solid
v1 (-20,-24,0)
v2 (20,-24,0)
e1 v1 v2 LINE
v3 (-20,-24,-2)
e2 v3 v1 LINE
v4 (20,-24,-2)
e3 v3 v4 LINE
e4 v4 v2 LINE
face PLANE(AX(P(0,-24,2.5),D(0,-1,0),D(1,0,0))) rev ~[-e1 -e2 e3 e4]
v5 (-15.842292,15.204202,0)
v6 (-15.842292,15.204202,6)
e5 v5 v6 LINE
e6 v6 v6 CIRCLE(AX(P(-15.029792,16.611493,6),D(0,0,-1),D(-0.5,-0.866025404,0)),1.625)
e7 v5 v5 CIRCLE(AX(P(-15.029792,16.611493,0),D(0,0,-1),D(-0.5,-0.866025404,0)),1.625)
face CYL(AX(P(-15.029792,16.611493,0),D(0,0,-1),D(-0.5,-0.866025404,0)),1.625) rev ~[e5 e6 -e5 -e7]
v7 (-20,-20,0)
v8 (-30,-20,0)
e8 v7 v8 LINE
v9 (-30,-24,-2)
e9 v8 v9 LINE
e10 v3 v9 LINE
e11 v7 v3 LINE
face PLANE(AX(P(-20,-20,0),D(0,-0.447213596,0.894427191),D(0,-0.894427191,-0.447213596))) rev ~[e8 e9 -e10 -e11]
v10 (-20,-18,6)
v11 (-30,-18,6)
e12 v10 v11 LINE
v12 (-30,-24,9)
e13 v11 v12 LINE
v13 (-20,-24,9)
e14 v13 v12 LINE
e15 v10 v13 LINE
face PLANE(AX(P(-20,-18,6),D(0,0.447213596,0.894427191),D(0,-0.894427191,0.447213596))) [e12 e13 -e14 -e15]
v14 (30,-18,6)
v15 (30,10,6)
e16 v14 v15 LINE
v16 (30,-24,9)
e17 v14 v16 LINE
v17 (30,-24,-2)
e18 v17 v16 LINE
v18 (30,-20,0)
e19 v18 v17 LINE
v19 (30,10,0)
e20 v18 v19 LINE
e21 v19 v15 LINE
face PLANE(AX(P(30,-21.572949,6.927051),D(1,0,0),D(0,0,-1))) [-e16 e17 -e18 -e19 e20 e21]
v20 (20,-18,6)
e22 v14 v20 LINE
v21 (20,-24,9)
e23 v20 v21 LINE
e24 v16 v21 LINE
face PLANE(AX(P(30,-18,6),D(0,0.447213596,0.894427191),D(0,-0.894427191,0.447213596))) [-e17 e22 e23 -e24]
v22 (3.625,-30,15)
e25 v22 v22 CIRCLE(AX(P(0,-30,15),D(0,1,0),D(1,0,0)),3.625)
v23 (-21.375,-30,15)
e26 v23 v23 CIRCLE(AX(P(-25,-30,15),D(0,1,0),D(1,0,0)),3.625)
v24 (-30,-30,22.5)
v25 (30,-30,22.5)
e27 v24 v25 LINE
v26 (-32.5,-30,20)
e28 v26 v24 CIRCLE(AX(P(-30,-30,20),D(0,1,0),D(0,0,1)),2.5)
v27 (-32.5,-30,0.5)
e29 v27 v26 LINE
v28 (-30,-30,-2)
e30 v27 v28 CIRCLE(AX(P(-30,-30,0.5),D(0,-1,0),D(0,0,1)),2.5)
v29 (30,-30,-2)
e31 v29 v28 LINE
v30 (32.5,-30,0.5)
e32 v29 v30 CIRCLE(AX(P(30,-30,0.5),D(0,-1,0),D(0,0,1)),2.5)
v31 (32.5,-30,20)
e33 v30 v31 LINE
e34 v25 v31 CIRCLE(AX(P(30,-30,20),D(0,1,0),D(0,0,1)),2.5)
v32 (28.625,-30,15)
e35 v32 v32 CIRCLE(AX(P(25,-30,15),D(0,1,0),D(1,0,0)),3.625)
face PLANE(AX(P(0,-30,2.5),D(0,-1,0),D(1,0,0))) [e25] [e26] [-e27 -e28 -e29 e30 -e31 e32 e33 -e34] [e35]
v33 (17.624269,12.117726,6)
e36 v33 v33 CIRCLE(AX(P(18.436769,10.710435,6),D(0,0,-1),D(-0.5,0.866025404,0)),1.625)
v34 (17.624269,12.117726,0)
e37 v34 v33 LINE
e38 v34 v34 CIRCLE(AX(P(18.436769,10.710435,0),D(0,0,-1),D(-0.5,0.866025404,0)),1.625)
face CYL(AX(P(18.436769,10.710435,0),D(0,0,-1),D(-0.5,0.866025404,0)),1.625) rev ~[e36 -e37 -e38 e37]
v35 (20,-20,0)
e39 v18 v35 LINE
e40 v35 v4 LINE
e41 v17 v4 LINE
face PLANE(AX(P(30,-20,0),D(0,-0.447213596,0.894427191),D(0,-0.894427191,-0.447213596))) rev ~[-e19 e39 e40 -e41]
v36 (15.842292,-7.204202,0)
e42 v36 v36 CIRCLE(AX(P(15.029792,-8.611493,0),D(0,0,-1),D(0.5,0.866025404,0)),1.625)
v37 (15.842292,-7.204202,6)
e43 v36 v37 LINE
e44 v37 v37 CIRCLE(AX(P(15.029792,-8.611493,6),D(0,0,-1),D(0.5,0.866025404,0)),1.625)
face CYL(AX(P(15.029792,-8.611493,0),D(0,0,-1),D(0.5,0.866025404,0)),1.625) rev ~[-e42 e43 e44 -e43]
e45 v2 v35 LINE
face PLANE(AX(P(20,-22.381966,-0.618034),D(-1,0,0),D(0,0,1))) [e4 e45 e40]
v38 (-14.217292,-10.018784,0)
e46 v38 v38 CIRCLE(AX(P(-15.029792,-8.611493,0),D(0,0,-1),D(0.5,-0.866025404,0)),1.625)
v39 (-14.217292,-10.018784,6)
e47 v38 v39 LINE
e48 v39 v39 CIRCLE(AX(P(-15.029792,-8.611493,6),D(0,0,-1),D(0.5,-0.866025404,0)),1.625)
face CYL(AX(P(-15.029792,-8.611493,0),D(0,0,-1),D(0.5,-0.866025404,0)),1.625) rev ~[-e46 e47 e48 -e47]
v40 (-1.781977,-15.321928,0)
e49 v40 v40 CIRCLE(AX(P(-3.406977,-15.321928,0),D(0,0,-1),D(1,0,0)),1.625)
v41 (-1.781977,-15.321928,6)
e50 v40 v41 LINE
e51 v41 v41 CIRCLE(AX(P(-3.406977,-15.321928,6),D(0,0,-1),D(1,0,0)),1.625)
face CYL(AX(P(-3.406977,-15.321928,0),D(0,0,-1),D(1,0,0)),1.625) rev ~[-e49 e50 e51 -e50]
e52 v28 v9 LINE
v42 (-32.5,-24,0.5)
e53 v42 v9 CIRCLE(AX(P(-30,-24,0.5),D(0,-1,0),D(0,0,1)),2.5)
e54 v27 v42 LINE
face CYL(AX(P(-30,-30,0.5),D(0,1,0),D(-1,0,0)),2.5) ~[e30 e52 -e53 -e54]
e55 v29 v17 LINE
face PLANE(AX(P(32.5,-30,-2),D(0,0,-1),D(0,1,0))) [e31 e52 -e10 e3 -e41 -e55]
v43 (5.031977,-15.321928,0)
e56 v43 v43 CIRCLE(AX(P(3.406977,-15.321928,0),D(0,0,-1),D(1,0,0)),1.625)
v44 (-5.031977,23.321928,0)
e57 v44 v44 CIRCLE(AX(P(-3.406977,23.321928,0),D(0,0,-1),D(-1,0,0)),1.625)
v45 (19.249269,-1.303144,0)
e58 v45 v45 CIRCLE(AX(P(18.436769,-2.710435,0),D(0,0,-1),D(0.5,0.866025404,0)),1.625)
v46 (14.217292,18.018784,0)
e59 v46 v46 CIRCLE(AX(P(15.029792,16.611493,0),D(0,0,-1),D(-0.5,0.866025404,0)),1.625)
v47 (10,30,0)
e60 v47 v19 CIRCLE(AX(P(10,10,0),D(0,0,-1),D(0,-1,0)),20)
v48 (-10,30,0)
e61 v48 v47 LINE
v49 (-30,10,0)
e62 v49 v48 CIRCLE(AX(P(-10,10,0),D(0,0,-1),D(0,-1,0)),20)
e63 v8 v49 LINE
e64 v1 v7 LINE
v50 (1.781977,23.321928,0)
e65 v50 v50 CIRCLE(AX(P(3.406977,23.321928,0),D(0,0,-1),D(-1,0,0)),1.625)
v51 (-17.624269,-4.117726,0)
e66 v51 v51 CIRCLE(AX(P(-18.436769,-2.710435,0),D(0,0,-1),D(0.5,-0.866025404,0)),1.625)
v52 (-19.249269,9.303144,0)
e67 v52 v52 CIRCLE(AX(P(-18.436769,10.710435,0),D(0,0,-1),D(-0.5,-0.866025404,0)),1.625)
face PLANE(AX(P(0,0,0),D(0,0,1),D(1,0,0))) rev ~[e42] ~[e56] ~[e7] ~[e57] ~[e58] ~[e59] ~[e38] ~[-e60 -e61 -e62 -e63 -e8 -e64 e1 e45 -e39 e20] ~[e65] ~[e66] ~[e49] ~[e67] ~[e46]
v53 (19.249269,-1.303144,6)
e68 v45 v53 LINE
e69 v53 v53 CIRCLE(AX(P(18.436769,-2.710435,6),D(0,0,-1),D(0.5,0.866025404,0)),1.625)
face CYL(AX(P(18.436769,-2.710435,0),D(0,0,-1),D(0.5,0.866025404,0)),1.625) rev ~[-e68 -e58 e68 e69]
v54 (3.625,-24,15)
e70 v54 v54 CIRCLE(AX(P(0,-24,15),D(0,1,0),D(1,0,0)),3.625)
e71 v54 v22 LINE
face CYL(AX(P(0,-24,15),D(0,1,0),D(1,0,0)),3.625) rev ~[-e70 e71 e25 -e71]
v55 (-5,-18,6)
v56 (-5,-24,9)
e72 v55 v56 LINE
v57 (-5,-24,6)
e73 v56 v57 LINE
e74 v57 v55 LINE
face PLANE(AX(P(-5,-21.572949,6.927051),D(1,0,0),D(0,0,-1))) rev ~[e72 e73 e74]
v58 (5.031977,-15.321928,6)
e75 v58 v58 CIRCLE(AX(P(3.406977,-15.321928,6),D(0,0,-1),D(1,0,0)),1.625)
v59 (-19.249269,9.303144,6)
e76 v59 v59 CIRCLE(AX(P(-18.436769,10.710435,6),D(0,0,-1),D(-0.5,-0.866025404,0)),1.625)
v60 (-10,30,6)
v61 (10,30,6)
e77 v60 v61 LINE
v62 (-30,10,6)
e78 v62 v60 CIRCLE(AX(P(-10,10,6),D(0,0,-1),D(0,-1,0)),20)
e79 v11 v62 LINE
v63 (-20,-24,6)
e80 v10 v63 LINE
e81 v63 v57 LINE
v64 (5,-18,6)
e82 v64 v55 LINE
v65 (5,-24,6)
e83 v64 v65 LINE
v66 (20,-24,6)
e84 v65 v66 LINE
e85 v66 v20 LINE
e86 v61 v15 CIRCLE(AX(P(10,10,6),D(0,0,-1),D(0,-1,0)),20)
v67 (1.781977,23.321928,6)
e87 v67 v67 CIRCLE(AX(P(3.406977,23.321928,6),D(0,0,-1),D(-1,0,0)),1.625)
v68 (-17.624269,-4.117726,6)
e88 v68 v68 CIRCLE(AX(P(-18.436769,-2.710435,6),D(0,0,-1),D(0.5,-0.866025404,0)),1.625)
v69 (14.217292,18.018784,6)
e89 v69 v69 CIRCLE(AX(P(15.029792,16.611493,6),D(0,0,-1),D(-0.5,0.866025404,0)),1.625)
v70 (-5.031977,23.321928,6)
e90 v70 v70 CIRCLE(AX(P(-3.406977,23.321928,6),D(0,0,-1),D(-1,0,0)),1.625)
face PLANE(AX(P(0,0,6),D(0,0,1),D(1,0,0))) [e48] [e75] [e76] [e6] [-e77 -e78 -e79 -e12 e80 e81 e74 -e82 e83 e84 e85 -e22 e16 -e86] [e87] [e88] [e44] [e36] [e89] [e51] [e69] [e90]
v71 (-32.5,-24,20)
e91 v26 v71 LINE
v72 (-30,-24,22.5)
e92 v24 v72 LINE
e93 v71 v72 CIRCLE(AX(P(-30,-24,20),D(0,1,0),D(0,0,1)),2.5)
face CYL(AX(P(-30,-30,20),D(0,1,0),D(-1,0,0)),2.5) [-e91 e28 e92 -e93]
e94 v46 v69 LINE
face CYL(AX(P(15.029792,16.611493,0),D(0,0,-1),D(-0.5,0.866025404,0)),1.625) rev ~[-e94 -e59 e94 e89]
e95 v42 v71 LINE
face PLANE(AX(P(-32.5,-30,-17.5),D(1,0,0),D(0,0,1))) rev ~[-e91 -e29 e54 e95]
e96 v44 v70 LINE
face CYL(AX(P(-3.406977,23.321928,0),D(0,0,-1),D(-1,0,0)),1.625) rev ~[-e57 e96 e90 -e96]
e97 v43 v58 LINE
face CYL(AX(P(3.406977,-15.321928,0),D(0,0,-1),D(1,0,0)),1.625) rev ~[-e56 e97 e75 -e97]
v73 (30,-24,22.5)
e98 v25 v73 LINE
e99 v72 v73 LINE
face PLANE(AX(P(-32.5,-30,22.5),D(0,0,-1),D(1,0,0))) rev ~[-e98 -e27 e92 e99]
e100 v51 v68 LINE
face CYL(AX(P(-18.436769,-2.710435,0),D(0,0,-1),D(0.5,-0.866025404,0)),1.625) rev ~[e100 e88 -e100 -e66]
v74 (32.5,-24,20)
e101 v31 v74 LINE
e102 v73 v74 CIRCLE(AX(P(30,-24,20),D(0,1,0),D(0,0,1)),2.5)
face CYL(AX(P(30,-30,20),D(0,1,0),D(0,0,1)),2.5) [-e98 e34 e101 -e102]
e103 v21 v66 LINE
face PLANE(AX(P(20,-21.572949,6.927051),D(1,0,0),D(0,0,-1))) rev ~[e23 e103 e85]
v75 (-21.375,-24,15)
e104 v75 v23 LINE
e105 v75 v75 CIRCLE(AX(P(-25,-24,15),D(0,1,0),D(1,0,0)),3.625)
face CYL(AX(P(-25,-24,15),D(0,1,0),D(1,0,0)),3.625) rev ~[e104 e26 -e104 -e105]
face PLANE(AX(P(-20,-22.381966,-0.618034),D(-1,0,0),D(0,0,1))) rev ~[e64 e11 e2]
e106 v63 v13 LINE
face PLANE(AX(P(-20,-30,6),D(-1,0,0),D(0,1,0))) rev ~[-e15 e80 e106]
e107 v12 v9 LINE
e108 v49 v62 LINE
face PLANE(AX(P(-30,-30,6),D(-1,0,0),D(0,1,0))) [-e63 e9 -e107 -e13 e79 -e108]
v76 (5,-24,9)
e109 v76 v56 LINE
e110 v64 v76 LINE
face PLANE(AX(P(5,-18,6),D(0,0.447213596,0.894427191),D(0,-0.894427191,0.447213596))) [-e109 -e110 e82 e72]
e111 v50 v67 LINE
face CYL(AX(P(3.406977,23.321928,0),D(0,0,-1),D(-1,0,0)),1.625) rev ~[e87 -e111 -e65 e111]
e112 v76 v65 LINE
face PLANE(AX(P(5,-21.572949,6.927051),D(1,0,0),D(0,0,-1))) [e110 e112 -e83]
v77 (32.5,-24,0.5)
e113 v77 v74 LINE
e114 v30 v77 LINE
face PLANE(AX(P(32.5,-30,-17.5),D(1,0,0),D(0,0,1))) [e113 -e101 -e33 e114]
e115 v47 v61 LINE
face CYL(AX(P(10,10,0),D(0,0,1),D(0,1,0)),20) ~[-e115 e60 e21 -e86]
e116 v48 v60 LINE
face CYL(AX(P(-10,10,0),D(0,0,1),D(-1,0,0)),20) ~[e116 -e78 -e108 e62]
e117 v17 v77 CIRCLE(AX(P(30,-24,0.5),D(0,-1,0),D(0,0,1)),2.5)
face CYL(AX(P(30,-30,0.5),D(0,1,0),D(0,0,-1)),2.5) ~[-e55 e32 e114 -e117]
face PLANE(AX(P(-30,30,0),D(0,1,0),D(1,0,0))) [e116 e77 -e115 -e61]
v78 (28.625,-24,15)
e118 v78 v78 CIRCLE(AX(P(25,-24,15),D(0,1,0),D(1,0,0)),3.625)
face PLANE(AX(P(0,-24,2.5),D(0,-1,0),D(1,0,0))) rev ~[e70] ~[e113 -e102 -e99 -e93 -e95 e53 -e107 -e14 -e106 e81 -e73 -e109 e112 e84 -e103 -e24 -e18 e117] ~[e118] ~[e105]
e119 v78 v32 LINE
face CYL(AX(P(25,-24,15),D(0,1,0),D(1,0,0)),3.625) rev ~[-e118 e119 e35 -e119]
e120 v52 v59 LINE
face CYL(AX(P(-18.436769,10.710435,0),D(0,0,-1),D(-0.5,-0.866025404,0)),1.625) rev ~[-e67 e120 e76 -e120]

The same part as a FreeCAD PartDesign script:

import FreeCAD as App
import Part
import Sketcher


def edges_at(feature, points):
    """Names of the edges that pass closest to the given points."""
    edges = feature.Shape.Edges
    near = lambda p: min(range(len(edges)), key=lambda i: edges[i].distToShape(Part.Vertex(*p))[0])
    return sorted({f"Edge{near(p) + 1}" for p in points})


def add_polygon(sketch, points):
    """Adds a closed chain of lines whose ends are joined by coincident constraints."""
    first, n = sketch.GeometryCount, len(points)
    for a, b in zip(points, points[1:] + points[:1]):
        sketch.addGeometry(Part.LineSegment(App.Vector(*a, 0), App.Vector(*b, 0)), False)
    for i in range(n):
        sketch.addConstraint(Sketcher.Constraint("Coincident", first + i, 2, first + (i + 1) % n, 1))

doc = App.newDocument("Part")
params = doc.addObject("Spreadsheet::Sheet", "Params")
for row, (alias, value) in enumerate([
    ("sketch1_width", "60 mm"),
    ("pad1_length", "6 mm"),
    ("sketch2_width", "10 mm"),
    ("sketch2_height", "6 mm"),
    ("pad2_length", "14 mm"),
    ("sketch3_width", "6 mm"),
    ("sketch3_width2", "4 mm"),
    ("sketch3_height", "3 mm"),
    ("sketch3_height2", "2 mm"),
    ("pad3_length", "10 mm"),
    ("sketch4_diameter", "7.25 mm"),
    ("pocket1_length", "15 mm"),
    ("linearpattern_pitch", "25 mm"),
    ("sketch5_diameter", "3.25 mm"),
    ("pocket2_length", "15 mm"),
    ("fillet_radius", "20 mm"),
    ("sketch6_diameter", "7.25 mm"),
    ("sketch6_width", "65 mm"),
    ("sketch6_height", "40 mm"),
    ("pad4_length", "6 mm"),
    ("sketch7_width", "6 mm"),
    ("sketch7_height", "15.5 mm"),
    ("pocket3_length", "65 mm"),
    ("fillet2_radius", "2.5 mm"),
    ("sketch8_width", "4 mm"),
    ("sketch8_height", "2 mm"),
    ("pocket4_length", "10 mm"),
], start=1):
    params.set(f"A{row}", alias)
    params.set(f"B{row}", "=" + value)
    params.setAlias(f"B{row}", alias)

body = doc.addObject("PartDesign::Body", "Body")

# Sketch on XY plane
sketch1 = body.newObject("Sketcher::SketchObject", "Sketch")
sketch1.AttachmentSupport = (doc.getObject("XY_Plane"), [""])
sketch1.MapMode = "FlatFace"
add_polygon(sketch1, [(-30, 30), (-30, -30), (30, -30), (30, 30)])  # lines 0-3
sketch1.addConstraint([
    Sketcher.Constraint("Vertical", 0),
    Sketcher.Constraint("Horizontal", 1),
    Sketcher.Constraint("Vertical", 2),
    Sketcher.Constraint("Horizontal", 3),
    Sketcher.Constraint("Symmetric", 0, 2, 2, 2, -1, 1),
    Sketcher.Constraint("Equal", 3, 0),
    Sketcher.Constraint("DistanceX", 1, 1, 1, 2, 60.0),
])
sketch1.setExpression("Constraints[10]", "Params.sketch1_width")
pad1 = body.newObject("PartDesign::Pad", "Pad")
pad1.Profile = sketch1
pad1.setExpression("Length", "Params.pad1_length")

# Sketch on XY plane
sketch2 = body.newObject("Sketcher::SketchObject", "Sketch001")
sketch2.AttachmentSupport = (doc.getObject("XY_Plane"), [""])
sketch2.MapMode = "FlatFace"
sketch2.AttachmentOffset = App.Placement(App.Vector(0, 0, 6), App.Rotation())
add_polygon(sketch2, [(20, -24), (20, -30), (30, -30), (30, -24)])  # lines 0-3
sketch2.addConstraint([
    Sketcher.Constraint("Vertical", 0),
    Sketcher.Constraint("Horizontal", 1),
    Sketcher.Constraint("Vertical", 2),
    Sketcher.Constraint("Horizontal", 3),
    Sketcher.Constraint("DistanceX", 1, 1, 1, 2, 10.0),
    Sketcher.Constraint("DistanceY", 0, 2, 0, 1, 6.0),
    Sketcher.Constraint("DistanceX", -1, 1, 0, 2, 20.0),
    Sketcher.Constraint("DistanceY", 0, 2, -1, 1, 30.0),
])
sketch2.setExpression("Constraints[8]", "Params.sketch2_width")
sketch2.setExpression("Constraints[9]", "Params.sketch2_height")
pad2 = body.newObject("PartDesign::Pad", "Pad001")
pad2.Profile = sketch2
pad2.setExpression("Length", "Params.pad2_length")

# Sketch on YZ plane
sketch3 = body.newObject("Sketcher::SketchObject", "Sketch002")
sketch3.AttachmentSupport = (doc.getObject("YZ_Plane"), [""])
sketch3.MapMode = "FlatFace"
sketch3.AttachmentOffset = App.Placement(App.Vector(0, 0, 30), App.Rotation())
add_polygon(sketch3, [(-18, 6), (-24, 9), (-24, 6)])  # lines 0-2
add_polygon(sketch3, [(-24, -2), (-20, 0), (-24, 0)])  # lines 3-5
sketch3.addConstraint([
    Sketcher.Constraint("Vertical", 1),
    Sketcher.Constraint("Horizontal", 2),
    Sketcher.Constraint("Horizontal", 4),
    Sketcher.Constraint("Vertical", 5),
    Sketcher.Constraint("PointOnObject", 3, 2, -1),
    Sketcher.Constraint("Vertical", 1, 2, 4, 2),
    Sketcher.Constraint("DistanceX", 2, 1, 2, 2, 6.0),
    Sketcher.Constraint("DistanceX", 4, 2, 4, 1, 4.0),
    Sketcher.Constraint("DistanceY", 1, 2, 1, 1, 3.0),
    Sketcher.Constraint("DistanceY", 5, 2, 5, 1, 2.0),
    Sketcher.Constraint("DistanceX", 0, 2, -1, 1, 24.0),
    Sketcher.Constraint("DistanceY", -1, 1, 0, 2, 9.0),
])
sketch3.setExpression("Constraints[12]", "Params.sketch3_width")
sketch3.setExpression("Constraints[13]", "Params.sketch3_width2")
sketch3.setExpression("Constraints[14]", "Params.sketch3_height")
sketch3.setExpression("Constraints[15]", "Params.sketch3_height2")
pad3 = body.newObject("PartDesign::Pad", "Pad002")
pad3.Profile = sketch3
pad3.setExpression("Length", "Params.pad3_length")
pad3.Reversed = True

# Sketch on XZ plane
sketch4 = body.newObject("Sketcher::SketchObject", "Sketch003")
sketch4.AttachmentSupport = (doc.getObject("XZ_Plane"), [""])
sketch4.MapMode = "FlatFace"
sketch4.AttachmentOffset = App.Placement(App.Vector(0, 0, 24), App.Rotation())
sketch4.addGeometry(Part.Circle(App.Vector(25, 15, 0), App.Vector(0, 0, 1), 3.6), False)
sketch4.addConstraint([
    Sketcher.Constraint("Diameter", 0, 7.25),
    Sketcher.Constraint("DistanceX", -1, 1, 0, 3, 25.0),
    Sketcher.Constraint("DistanceY", -1, 1, 0, 3, 15.0),
])
sketch4.setExpression("Constraints[0]", "Params.sketch4_diameter")
pocket1 = body.newObject("PartDesign::Pocket", "Pocket")
pocket1.Profile = sketch4
pocket1.setExpression("Length", "Params.pocket1_length")
pocket1.Reversed = True
doc.recompute()

linearpattern = body.newObject("PartDesign::LinearPattern", "LinearPattern")
linearpattern.Originals = [pad2, pad3, pocket1]
linearpattern.Direction = (doc.getObject("X_Axis"), [""])
linearpattern.Mode = "offset"
linearpattern.setExpression("Offset", "Params.linearpattern_pitch")
linearpattern.Occurrences = 3
linearpattern.Reversed = True
body.Tip = linearpattern

# Sketch on XY plane
sketch5 = body.newObject("Sketcher::SketchObject", "Sketch004")
sketch5.AttachmentSupport = (doc.getObject("XY_Plane"), [""])
sketch5.MapMode = "FlatFace"
sketch5.addGeometry([
    Part.Circle(App.Vector(-3.4, 23.3, 0), App.Vector(0, 0, 1), 1.6),
    Part.Circle(App.Vector(3.4, 23.3, 0), App.Vector(0, 0, 1), 1.6),
], False)
sketch5.addConstraint([
    Sketcher.Constraint("Equal", 0, 1),
    Sketcher.Constraint("Symmetric", 0, 3, 1, 3, -2),
    Sketcher.Constraint("Diameter", 0, 3.25),
    Sketcher.Constraint("DistanceY", -1, 1, 0, 3, 23.321928),
    Sketcher.Constraint("DistanceX", 0, 3, -1, 1, 3.406977),
])
sketch5.setExpression("Constraints[2]", "Params.sketch5_diameter")
pocket2 = body.newObject("PartDesign::Pocket", "Pocket001")
pocket2.Profile = sketch5
pocket2.setExpression("Length", "Params.pocket2_length")
pocket2.Reversed = True
doc.recompute()

datumline = body.newObject("PartDesign::Line", "DatumLine")
datumline.Placement = App.Placement(App.Vector(0, 4, 0), App.Rotation(App.Vector(0, 0, 1), App.Vector(0, 0, 1)))
polarpattern = body.newObject("PartDesign::PolarPattern", "PolarPattern")
polarpattern.Originals = [pocket2]
polarpattern.Axis = (datumline, [""])
polarpattern.Angle = 360
polarpattern.Occurrences = 6
body.Tip = polarpattern
doc.recompute()

fillet = body.newObject("PartDesign::Fillet", "Fillet")
fillet.Base = (polarpattern, edges_at(polarpattern, [(-30, 30, 3), (30, 30, 3)]))
fillet.setExpression("Radius", "Params.fillet_radius")

# Sketch on XZ plane
sketch6 = body.newObject("Sketcher::SketchObject", "Sketch005")
sketch6.AttachmentSupport = (doc.getObject("XZ_Plane"), [""])
sketch6.MapMode = "FlatFace"
sketch6.AttachmentOffset = App.Placement(App.Vector(0, 0, 30), App.Rotation())
add_polygon(sketch6, [(-32.5, 22.5), (-32.5, -17.5), (32.5, -17.5), (32.5, 22.5)])  # lines 0-3
sketch6.addGeometry(Part.Circle(App.Vector(-25, -10, 0), App.Vector(0, 0, 1), 3.6), False)  # 4
sketch6.addGeometry(Part.Circle(App.Vector(0, -10, 0), App.Vector(0, 0, 1), 3.6), False)  # 5
sketch6.addGeometry(Part.Circle(App.Vector(25, -10, 0), App.Vector(0, 0, 1), 3.6), False)  # 6
sketch6.addGeometry(Part.Circle(App.Vector(-25, 15, 0), App.Vector(0, 0, 1), 3.6), False)  # 7
sketch6.addGeometry(Part.Circle(App.Vector(0, 15, 0), App.Vector(0, 0, 1), 3.6), False)  # 8
sketch6.addGeometry(Part.Circle(App.Vector(25, 15, 0), App.Vector(0, 0, 1), 3.6), False)  # 9
sketch6.addConstraint([
    Sketcher.Constraint("Vertical", 0),
    Sketcher.Constraint("Horizontal", 1),
    Sketcher.Constraint("Vertical", 2),
    Sketcher.Constraint("Horizontal", 3),
    Sketcher.Constraint("Equal", 4, 5),
    Sketcher.Constraint("Equal", 5, 6),
    Sketcher.Constraint("Equal", 6, 7),
    Sketcher.Constraint("Equal", 7, 8),
    Sketcher.Constraint("Equal", 8, 9),
    Sketcher.Constraint("Symmetric", 4, 3, 6, 3, -2),
    Sketcher.Constraint("Symmetric", 7, 3, 9, 3, -2),
    Sketcher.Constraint("PointOnObject", 5, 3, -2),
    Sketcher.Constraint("PointOnObject", 8, 3, -2),
    Sketcher.Constraint("Horizontal", 4, 3, 5, 3),
    Sketcher.Constraint("Horizontal", 7, 3, 8, 3),
    Sketcher.Constraint("Vertical", 4, 3, 7, 3),
    Sketcher.Constraint("Diameter", 4, 7.25),
    Sketcher.Constraint("DistanceX", 1, 1, 1, 2, 65.0),
    Sketcher.Constraint("DistanceY", 0, 2, 0, 1, 40.0),
    Sketcher.Constraint("DistanceX", 4, 3, -1, 1, 25.0),
    Sketcher.Constraint("DistanceY", 4, 3, -1, 1, 10.0),
    Sketcher.Constraint("DistanceY", -1, 1, 7, 3, 15.0),
    Sketcher.Constraint("DistanceX", 0, 2, -1, 1, 32.5),
    Sketcher.Constraint("DistanceY", 0, 2, -1, 1, 17.5),
])
sketch6.setExpression("Constraints[20]", "Params.sketch6_diameter")
sketch6.setExpression("Constraints[21]", "Params.sketch6_width")
sketch6.setExpression("Constraints[22]", "Params.sketch6_height")
pad4 = body.newObject("PartDesign::Pad", "Pad003")
pad4.Profile = sketch6
pad4.setExpression("Length", "Params.pad4_length")
pad4.Reversed = True

# Sketch on YZ plane
sketch7 = body.newObject("Sketcher::SketchObject", "Sketch006")
sketch7.AttachmentSupport = (doc.getObject("YZ_Plane"), [""])
sketch7.MapMode = "FlatFace"
sketch7.AttachmentOffset = App.Placement(App.Vector(0, 0, 32.5), App.Rotation())
add_polygon(sketch7, [(-24, -2), (-30, -2), (-30, -18), (-24, -18)])  # lines 0-3
sketch7.addConstraint([
    Sketcher.Constraint("Horizontal", 0),
    Sketcher.Constraint("Vertical", 1),
    Sketcher.Constraint("Horizontal", 2),
    Sketcher.Constraint("Vertical", 3),
    Sketcher.Constraint("DistanceX", 0, 2, 0, 1, 6.0),
    Sketcher.Constraint("DistanceY", 1, 2, 1, 1, 15.5),
    Sketcher.Constraint("DistanceX", 0, 2, -1, 1, 30.0),
    Sketcher.Constraint("DistanceY", 0, 2, -1, 1, 2.0),
])
sketch7.setExpression("Constraints[8]", "Params.sketch7_width")
sketch7.setExpression("Constraints[9]", "Params.sketch7_height")
pocket3 = body.newObject("PartDesign::Pocket", "Pocket002")
pocket3.Profile = sketch7
pocket3.setExpression("Length", "Params.pocket3_length")
doc.recompute()

fillet2 = body.newObject("PartDesign::Fillet", "Fillet001")
fillet2.Base = (pocket3, edges_at(pocket3, [
    (-32.5, -27, 22.5),
    (-32.5, -27, -2),
    (32.5, -27, 22.5),
    (32.5, -27, -2),
]))
fillet2.setExpression("Radius", "Params.fillet2_radius")

# Sketch on YZ plane
sketch8 = body.newObject("Sketcher::SketchObject", "Sketch007")
sketch8.AttachmentSupport = (doc.getObject("YZ_Plane"), [""])
sketch8.MapMode = "FlatFace"
sketch8.AttachmentOffset = App.Placement(App.Vector(0, 0, 5), App.Rotation())
add_polygon(sketch8, [(-20, 0), (-24, 0), (-24, -2), (-20, -2)])  # lines 0-3
sketch8.addConstraint([
    Sketcher.Constraint("Horizontal", 0),
    Sketcher.Constraint("Vertical", 1),
    Sketcher.Constraint("Horizontal", 2),
    Sketcher.Constraint("Vertical", 3),
    Sketcher.Constraint("PointOnObject", 0, 2, -1),
    Sketcher.Constraint("DistanceX", 0, 2, 0, 1, 4.0),
    Sketcher.Constraint("DistanceY", 1, 2, 1, 1, 2.0),
    Sketcher.Constraint("DistanceX", 0, 2, -1, 1, 24.0),
])
sketch8.setExpression("Constraints[9]", "Params.sketch8_width")
sketch8.setExpression("Constraints[10]", "Params.sketch8_height")
pocket4 = body.newObject("PartDesign::Pocket", "Pocket003")
pocket4.Profile = sketch8
pocket4.setExpression("Length", "Params.pocket4_length")

doc.recompute()
